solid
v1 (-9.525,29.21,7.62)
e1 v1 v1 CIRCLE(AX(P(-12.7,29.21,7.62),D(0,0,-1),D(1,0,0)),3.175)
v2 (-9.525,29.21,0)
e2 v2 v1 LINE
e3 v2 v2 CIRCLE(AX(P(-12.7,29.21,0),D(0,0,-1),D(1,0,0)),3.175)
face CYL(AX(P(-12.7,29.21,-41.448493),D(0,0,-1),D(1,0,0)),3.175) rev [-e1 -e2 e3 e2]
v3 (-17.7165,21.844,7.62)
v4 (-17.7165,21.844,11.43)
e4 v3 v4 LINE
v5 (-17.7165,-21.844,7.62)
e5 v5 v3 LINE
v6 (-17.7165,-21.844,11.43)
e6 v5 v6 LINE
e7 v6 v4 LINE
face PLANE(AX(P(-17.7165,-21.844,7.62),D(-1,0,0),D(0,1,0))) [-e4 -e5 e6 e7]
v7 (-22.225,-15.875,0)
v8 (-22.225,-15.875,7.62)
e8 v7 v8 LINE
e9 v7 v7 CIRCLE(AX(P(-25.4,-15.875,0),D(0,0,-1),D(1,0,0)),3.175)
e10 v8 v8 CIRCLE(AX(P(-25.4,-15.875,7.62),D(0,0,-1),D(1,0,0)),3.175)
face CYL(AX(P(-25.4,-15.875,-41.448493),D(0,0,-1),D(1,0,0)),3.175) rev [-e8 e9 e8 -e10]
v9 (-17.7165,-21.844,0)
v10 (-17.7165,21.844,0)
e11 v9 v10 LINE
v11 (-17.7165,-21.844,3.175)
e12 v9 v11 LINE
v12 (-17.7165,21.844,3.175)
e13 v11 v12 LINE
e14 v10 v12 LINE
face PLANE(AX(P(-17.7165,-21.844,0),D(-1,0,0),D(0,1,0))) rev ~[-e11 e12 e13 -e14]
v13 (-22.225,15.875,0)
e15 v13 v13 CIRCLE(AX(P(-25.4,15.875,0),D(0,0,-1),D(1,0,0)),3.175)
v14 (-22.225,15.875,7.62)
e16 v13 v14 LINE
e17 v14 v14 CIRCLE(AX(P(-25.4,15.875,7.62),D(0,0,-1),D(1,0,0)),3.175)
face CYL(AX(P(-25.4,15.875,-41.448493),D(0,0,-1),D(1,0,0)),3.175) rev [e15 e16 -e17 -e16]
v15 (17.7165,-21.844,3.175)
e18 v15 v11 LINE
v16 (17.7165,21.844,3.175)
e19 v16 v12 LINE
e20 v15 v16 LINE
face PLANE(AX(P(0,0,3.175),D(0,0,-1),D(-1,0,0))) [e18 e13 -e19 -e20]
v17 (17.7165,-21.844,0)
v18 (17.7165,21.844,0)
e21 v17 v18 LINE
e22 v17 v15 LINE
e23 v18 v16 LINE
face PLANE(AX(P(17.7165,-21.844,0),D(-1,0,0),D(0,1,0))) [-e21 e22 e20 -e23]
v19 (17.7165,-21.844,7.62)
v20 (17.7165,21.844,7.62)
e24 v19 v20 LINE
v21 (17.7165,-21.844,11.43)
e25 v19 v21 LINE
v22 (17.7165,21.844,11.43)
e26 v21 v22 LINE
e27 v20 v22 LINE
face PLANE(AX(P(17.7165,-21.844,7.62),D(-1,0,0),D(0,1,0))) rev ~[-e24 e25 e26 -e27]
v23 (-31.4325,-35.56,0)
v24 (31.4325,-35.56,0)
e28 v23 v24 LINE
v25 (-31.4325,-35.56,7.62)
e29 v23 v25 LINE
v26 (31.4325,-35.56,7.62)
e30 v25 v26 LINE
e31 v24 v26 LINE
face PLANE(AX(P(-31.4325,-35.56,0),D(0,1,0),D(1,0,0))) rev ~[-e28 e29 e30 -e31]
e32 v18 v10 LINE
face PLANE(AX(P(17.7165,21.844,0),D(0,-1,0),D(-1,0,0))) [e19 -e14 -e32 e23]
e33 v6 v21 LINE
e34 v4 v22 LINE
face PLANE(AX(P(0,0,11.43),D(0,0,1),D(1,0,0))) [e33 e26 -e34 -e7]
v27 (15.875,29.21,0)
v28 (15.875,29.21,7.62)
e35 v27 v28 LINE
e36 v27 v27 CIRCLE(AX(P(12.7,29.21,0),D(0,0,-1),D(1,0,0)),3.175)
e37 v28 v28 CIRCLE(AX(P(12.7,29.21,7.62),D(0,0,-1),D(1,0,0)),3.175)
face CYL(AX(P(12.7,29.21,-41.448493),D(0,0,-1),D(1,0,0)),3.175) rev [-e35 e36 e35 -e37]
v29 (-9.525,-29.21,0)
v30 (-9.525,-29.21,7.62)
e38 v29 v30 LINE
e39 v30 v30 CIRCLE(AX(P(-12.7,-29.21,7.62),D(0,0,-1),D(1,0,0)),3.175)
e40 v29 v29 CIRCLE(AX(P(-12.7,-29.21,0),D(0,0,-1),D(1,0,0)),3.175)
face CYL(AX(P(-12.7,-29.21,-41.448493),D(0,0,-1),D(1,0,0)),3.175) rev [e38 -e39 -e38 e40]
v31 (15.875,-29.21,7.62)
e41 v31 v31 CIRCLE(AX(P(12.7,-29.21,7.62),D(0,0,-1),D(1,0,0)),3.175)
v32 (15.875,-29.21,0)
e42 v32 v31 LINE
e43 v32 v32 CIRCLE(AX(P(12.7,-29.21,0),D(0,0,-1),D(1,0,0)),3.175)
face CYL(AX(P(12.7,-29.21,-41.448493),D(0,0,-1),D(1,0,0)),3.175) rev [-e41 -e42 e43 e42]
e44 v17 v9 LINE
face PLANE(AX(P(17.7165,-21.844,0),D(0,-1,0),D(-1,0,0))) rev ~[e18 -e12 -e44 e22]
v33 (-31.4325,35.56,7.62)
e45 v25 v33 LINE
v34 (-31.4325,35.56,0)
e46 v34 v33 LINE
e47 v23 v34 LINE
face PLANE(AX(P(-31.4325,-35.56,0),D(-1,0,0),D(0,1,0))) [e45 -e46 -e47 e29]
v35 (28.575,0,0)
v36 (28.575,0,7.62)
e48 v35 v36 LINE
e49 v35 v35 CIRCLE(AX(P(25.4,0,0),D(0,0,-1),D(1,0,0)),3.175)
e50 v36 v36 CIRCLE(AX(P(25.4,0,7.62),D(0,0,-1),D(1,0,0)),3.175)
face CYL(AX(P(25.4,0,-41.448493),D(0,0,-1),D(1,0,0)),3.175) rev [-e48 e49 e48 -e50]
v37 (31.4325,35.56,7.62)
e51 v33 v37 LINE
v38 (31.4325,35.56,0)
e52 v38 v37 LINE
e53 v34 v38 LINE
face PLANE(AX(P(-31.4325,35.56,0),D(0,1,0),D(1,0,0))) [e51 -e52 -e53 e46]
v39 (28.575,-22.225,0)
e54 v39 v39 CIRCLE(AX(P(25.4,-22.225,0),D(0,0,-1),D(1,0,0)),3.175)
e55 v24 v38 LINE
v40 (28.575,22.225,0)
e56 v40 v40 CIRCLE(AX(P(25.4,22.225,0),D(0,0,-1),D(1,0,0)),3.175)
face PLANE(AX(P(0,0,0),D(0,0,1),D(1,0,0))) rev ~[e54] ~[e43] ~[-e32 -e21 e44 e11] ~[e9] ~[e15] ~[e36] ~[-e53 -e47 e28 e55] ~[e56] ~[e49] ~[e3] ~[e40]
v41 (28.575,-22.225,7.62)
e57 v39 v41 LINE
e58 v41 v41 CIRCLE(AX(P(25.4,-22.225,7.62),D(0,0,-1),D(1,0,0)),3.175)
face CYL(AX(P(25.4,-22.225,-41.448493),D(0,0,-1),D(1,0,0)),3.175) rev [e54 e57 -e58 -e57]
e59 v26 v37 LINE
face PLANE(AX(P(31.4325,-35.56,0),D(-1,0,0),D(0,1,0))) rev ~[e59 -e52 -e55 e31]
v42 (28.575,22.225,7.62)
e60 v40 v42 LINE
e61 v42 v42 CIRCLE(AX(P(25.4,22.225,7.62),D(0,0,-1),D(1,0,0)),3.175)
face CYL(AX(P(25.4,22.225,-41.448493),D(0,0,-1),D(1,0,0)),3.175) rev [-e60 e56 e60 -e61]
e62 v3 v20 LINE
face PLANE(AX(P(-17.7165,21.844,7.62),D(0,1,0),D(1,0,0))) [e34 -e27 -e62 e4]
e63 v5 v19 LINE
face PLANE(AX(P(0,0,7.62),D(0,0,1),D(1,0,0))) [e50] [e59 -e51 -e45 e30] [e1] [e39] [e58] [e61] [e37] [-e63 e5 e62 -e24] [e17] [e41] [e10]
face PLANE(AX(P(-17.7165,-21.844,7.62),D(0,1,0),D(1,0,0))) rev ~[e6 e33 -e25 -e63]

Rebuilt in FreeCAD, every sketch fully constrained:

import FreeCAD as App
import Part
import Sketcher

V = App.Vector
Q = App.Units.Quantity


def add_polygon(sketch, points):
    """Adds a closed chain of lines whose ends are joined by coincident constraints."""
    first, n = sketch.GeometryCount, len(points)
    for a, b in zip(points, points[1:] + points[:1]):
        sketch.addGeometry(Part.LineSegment(App.Vector(*a, 0), App.Vector(*b, 0)), False)
    for i in range(n):
        sketch.addConstraint(Sketcher.Constraint("Coincident", first + i, 2, first + (i + 1) % n, 1))

doc = App.newDocument("Part")
body = doc.addObject("PartDesign::Body", "Body")

sketch1 = body.newObject("Sketcher::SketchObject", "Sketch")
sketch1.AttachmentSupport = (doc.getObject("XY_Plane"), [""])
sketch1.MapMode = "FlatFace"
add_polygon(sketch1, [(-31.4325, 35.56), (-31.4325, -35.56), (31.4325, -35.56), (31.4325, 35.56)])
sketch1.addConstraint([
    Sketcher.Constraint("Vertical", 0),
    Sketcher.Constraint("Horizontal", 1),
    Sketcher.Constraint("Vertical", 2),
    Sketcher.Constraint("Horizontal", 3),
    Sketcher.Constraint("Symmetric", 0, 2, 2, 2, -1, 1),
    Sketcher.Constraint("DistanceY", 0, 2, 0, 1, Q("2.8 in")),
    Sketcher.Constraint("DistanceX", 1, 1, 1, 2, Q("2.475 in")),
])
pad1 = body.newObject("PartDesign::Pad", "Pad")
pad1.Profile = sketch1
pad1.Length = Q("0.3 in")

sketch2 = body.newObject("Sketcher::SketchObject", "Sketch001")
sketch2.AttachmentSupport = (doc.getObject("XY_Plane"), [""])
sketch2.MapMode = "FlatFace"
sketch2.AttachmentOffset = App.Placement(V(0, 0, 0.3 * 25.4), App.Rotation())
add_polygon(sketch2, [(-17.7165, 21.844), (-17.7165, -21.844), (17.7165, -21.844), (17.7165, 21.844)])
sketch2.addConstraint([
    Sketcher.Constraint("Vertical", 0),
    Sketcher.Constraint("Horizontal", 1),
    Sketcher.Constraint("Vertical", 2),
    Sketcher.Constraint("Horizontal", 3),
    Sketcher.Constraint("Symmetric", 0, 2, 2, 2, -1, 1),
    Sketcher.Constraint("DistanceY", 0, 2, 0, 1, Q("1.72 in")),
    Sketcher.Constraint("DistanceX", 1, 1, 1, 2, Q("1.395 in")),
])
pad2 = body.newObject("PartDesign::Pad", "Pad001")
pad2.Profile = sketch2
pad2.Length = Q("0.15 in")

sketch3 = body.newObject("Sketcher::SketchObject", "Sketch002")
sketch3.AttachmentSupport = (doc.getObject("XY_Plane"), [""])
sketch3.MapMode = "FlatFace"
add_polygon(sketch3, [(17.7165, 21.844), (17.7165, -21.844), (-17.7165, -21.844), (-17.7165, 21.844)])
sketch3.addConstraint([
    Sketcher.Constraint("Vertical", 0),
    Sketcher.Constraint("Horizontal", 1),
    Sketcher.Constraint("Vertical", 2),
    Sketcher.Constraint("Horizontal", 3),
    Sketcher.Constraint("Symmetric", 0, 2, 2, 2, -1, 1),
    Sketcher.Constraint("DistanceY", 0, 2, 0, 1, Q("1.72 in")),
    Sketcher.Constraint("DistanceX", 1, 2, 1, 1, Q("1.395 in")),
])
pocket1 = body.newObject("PartDesign::Pocket", "Pocket")
pocket1.Profile = sketch3
pocket1.Length = Q("0.125 in")
pocket1.Reversed = True

sketch4 = body.newObject("Sketcher::SketchObject", "Sketch003")
sketch4.AttachmentSupport = (doc.getObject("XY_Plane"), [""])
sketch4.MapMode = "FlatFace"
sketch4.AttachmentOffset = App.Placement(V(0, 0, 0.3 * 25.4), App.Rotation())
sketch4.addGeometry([
    Part.Circle(V(-12.7, 29.21, 0), V(0, 0, 1), 3.175),
    Part.Circle(V(-25.4, 15.875, 0), V(0, 0, 1), 3.175),
    Part.Circle(V(-12.7, -29.21, 0), V(0, 0, 1), 3.175),
    Part.Circle(V(-25.4, -15.875, 0), V(0, 0, 1), 3.175),
    Part.Circle(V(12.7, -29.21, 0), V(0, 0, 1), 3.175),
    Part.Circle(V(12.7, 29.21, 0), V(0, 0, 1), 3.175),
    Part.Circle(V(25.4, 0, 0), V(0, 0, 1), 3.175),
    Part.Circle(V(25.4, 22.225, 0), V(0, 0, 1), 3.175),
    Part.Circle(V(25.4, -22.225, 0), V(0, 0, 1), 3.175),
], False)
sketch4.addConstraint([
    Sketcher.Constraint("Equal", 0, 1),
    Sketcher.Constraint("Equal", 1, 2),
    Sketcher.Constraint("Equal", 2, 3),
    Sketcher.Constraint("Equal", 3, 4),
    Sketcher.Constraint("Equal", 4, 5),
    Sketcher.Constraint("Equal", 5, 6),
    Sketcher.Constraint("Equal", 6, 7),
    Sketcher.Constraint("Equal", 7, 8),
    Sketcher.Constraint("Symmetric", 0, 3, 4, 3, -1, 1),
    Sketcher.Constraint("Symmetric", 2, 3, 5, 3, -1, 1),
    Sketcher.Constraint("Symmetric", 2, 3, 4, 3, -2),
    Sketcher.Constraint("Symmetric", 1, 3, 3, 3, -1),
    Sketcher.Constraint("Symmetric", 7, 3, 8, 3, -1),
    Sketcher.Constraint("PointOnObject", 6, 3, -1),
    Sketcher.Constraint("Vertical", 6, 3, 7, 3),
    Sketcher.Constraint("Diameter", 0, Q("0.25 in")),
    Sketcher.Constraint("DistanceX", 1, 3, -1, 1, Q("1 in")),
    Sketcher.Constraint("DistanceX", -1, 1, 6, 3, Q("1 in")),
    Sketcher.Constraint("DistanceX", 2, 3, 4, 3, Q("1 in")),
    Sketcher.Constraint("DistanceY", 2, 3, 0, 3, Q("2.3 in")),
    Sketcher.Constraint("DistanceY", 3, 3, 1, 3, Q("1.25 in")),
    Sketcher.Constraint("DistanceY", 1, 3, 7, 3, Q("0.25 in")),
])
pocket2 = body.newObject("PartDesign::Pocket", "Pocket001")
pocket2.Profile = sketch4
pocket2.Type = "ThroughAll"
pocket2.Midplane = True

doc.recompute()
